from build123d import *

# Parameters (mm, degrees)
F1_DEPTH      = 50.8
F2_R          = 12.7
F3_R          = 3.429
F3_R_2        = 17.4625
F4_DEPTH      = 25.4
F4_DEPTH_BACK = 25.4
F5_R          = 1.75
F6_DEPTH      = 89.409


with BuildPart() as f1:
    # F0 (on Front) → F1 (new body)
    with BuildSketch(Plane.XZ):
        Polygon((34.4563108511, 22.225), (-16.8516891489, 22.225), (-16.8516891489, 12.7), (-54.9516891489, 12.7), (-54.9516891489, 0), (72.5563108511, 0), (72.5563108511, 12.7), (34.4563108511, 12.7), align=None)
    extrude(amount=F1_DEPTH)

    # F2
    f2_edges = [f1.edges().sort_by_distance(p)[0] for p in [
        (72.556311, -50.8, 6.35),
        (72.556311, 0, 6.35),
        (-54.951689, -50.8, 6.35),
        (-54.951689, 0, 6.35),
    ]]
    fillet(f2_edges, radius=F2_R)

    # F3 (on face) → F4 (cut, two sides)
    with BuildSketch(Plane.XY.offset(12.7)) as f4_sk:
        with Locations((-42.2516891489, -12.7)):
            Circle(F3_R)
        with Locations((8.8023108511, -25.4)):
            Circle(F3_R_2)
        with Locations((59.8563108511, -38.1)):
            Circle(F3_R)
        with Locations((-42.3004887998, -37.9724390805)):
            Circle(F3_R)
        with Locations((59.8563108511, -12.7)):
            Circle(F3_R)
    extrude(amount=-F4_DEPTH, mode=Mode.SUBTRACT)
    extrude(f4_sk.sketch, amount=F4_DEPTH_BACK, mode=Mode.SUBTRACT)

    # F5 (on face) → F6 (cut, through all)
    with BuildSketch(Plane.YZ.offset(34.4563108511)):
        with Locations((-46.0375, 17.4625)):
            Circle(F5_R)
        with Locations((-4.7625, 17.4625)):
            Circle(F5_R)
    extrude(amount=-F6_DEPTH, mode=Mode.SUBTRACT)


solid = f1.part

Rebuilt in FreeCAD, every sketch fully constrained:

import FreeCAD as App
import Part
import Sketcher
from FreeCAD import Vector
Q = App.Units.Quantity


def edges_at(feature, points):
    """Names of the edges that pass closest to the given points."""
    edges = feature.Shape.Edges
    near = lambda p: min(range(len(edges)), key=lambda i: edges[i].distToShape(Part.Vertex(*p))[0])
    return sorted({f"Edge{near(p) + 1}" for p in points})

doc = App.newDocument("Part")
params = doc.addObject("Spreadsheet::Sheet", "Params")
for row, (alias, value) in enumerate([
    ("sketch1_width", "1.5 in"),
    ("sketch1_height", "0.5 in"),
    ("sketch1_width2", "2.02 in"),
    ("sketch1_height2", "0.375 in"),
    ("pad1_length", "2 in"),
    ("fillet_radius", "0.5 in"),
    ("sketch2_diameter", "0.27 in"),
    ("sketch2_diameter2", "1.375 in"),
], start=1):
    params.set(f"A{row}", alias)
    params.set(f"B{row}", "=" + value)
    params.setAlias(f"B{row}", alias)

body = doc.addObject("PartDesign::Body", "Body")

sketch1 = body.newObject("Sketcher::SketchObject", "Sketch")
sketch1.AttachmentSupport = (doc.getObject("XZ_Plane"), [""])
sketch1.MapMode = "FlatFace"
sketch1.addGeometry([
    Part.LineSegment(Vector(34.456311, 22.225, 0), Vector(-16.851689, 22.225, 0)),
    Part.LineSegment(Vector(-16.851689, 22.225, 0), Vector(-16.851689, 12.7, 0)),
    Part.LineSegment(Vector(-16.851689, 12.7, 0), Vector(-54.951689, 12.7, 0)),
    Part.LineSegment(Vector(-54.951689, 12.7, 0), Vector(-54.951689, 0, 0)),
    Part.LineSegment(Vector(-54.951689, 0, 0), Vector(72.556311, 0, 0)),
    Part.LineSegment(Vector(72.556311, 0, 0), Vector(72.556311, 12.7, 0)),
    Part.LineSegment(Vector(72.556311, 12.7, 0), Vector(34.456311, 12.7, 0)),
    Part.LineSegment(Vector(34.456311, 12.7, 0), Vector(34.456311, 22.225, 0)),
], False)
sketch1.addConstraint([
    Sketcher.Constraint("Coincident", 0, 2, 1, 1),
    Sketcher.Constraint("Coincident", 1, 2, 2, 1),
    Sketcher.Constraint("Coincident", 2, 2, 3, 1),
    Sketcher.Constraint("Coincident", 3, 2, 4, 1),
    Sketcher.Constraint("Coincident", 4, 2, 5, 1),
    Sketcher.Constraint("Coincident", 5, 2, 6, 1),
    Sketcher.Constraint("Coincident", 6, 2, 7, 1),
    Sketcher.Constraint("Coincident", 7, 2, 0, 1),
    Sketcher.Constraint("Horizontal", 0),
    Sketcher.Constraint("Vertical", 1),
    Sketcher.Constraint("Horizontal", 2),
    Sketcher.Constraint("Vertical", 3),
    Sketcher.Constraint("Horizontal", 4),
    Sketcher.Constraint("Vertical", 5),
    Sketcher.Constraint("Horizontal", 6),
    Sketcher.Constraint("Vertical", 7),
    Sketcher.Constraint("PointOnObject", 3, 2, -1),
    Sketcher.Constraint("Horizontal", 2, 2, 5, 2),
    Sketcher.Constraint("Equal", 2, 6),
    Sketcher.Constraint("DistanceX", 2, 2, 2, 1, Q("1.5 in")),
    Sketcher.Constraint("DistanceY", 3, 2, 3, 1, Q("0.5 in")),
    Sketcher.Constraint("DistanceX", 0, 2, 0, 1, Q("2.02 in")),
    Sketcher.Constraint("DistanceY", 1, 2, 1, 1, Q("0.375 in")),
    Sketcher.Constraint("DistanceX", 0, 2, -1, 1, Q("16.851689 mm")),
])
sketch1.setExpression("Constraints[19]", "Params.sketch1_width")
sketch1.setExpression("Constraints[20]", "Params.sketch1_height")
sketch1.setExpression("Constraints[21]", "Params.sketch1_width2")
sketch1.setExpression("Constraints[22]", "Params.sketch1_height2")
pad1 = body.newObject("PartDesign::Pad", "Pad")
pad1.Profile = sketch1
pad1.setExpression("Length", "Params.pad1_length")
doc.recompute()

fillet = body.newObject("PartDesign::Fillet", "Fillet")
fillet.Base = (pad1, edges_at(pad1, [
    (72.556, -50.8, 6.35),
    (72.556, 0, 6.35),
    (-54.952, -50.8, 6.35),
    (-54.952, 0, 6.35),
]))
fillet.setExpression("Radius", "Params.fillet_radius")

sketch2 = body.newObject("Sketcher::SketchObject", "Sketch001")
sketch2.AttachmentSupport = (doc.getObject("XY_Plane"), [""])
sketch2.MapMode = "FlatFace"
sketch2.AttachmentOffset = App.Placement(Vector(0, 0, 0.5 * 25.4), App.Rotation())
sketch2.addGeometry([
    Part.Circle(Vector(-42.251689, -12.7, 0), Vector(0, 0, 1), 3.429),
    Part.Circle(Vector(8.802311, -25.4, 0), Vector(0, 0, 1), 17.4625),
    Part.Circle(Vector(59.856311, -38.1, 0), Vector(0, 0, 1), 3.429),
    Part.Circle(Vector(-42.300489, -37.972439, 0), Vector(0, 0, 1), 3.429),
    Part.Circle(Vector(59.856311, -12.7, 0), Vector(0, 0, 1), 3.429),
], False)
sketch2.addConstraint([
    Sketcher.Constraint("Equal", 0, 2),
    Sketcher.Constraint("Equal", 2, 3),
    Sketcher.Constraint("Equal", 3, 4),
    Sketcher.Constraint("Horizontal", 0, 3, 4, 3),
    Sketcher.Constraint("Vertical", 2, 3, 4, 3),
    Sketcher.Constraint("Diameter", 0, Q("0.27 in")),
    Sketcher.Constraint("Diameter", 1, Q("1.375 in")),
    Sketcher.Constraint("DistanceY", 1, 3, -1, 1, Q("1 in")),
    Sketcher.Constraint("DistanceY", 2, 3, 0, 3, Q("1 in")),
    Sketcher.Constraint("DistanceY", 0, 3, -1, 1, Q("0.5 in")),
    Sketcher.Constraint("DistanceX", 0, 3, 1, 3, Q("2.01 in")),
    Sketcher.Constraint("DistanceX", 1, 3, 2, 3, Q("2.01 in")),
    Sketcher.Constraint("DistanceX", 3, 3, 0, 3, Q("0.0488 mm")),
    Sketcher.Constraint("DistanceX", 0, 3, -1, 1, Q("42.251689 mm")),
    Sketcher.Constraint("DistanceY", 3, 3, -1, 1, Q("37.972439 mm")),
])
sketch2.setExpression("Constraints[5]", "Params.sketch2_diameter")
sketch2.setExpression("Constraints[6]", "Params.sketch2_diameter2")
pocket1 = body.newObject("PartDesign::Pocket", "Pocket")
pocket1.Profile = sketch2
pocket1.Type = "ThroughAll"
pocket1.Midplane = True

sketch3 = body.newObject("Sketcher::SketchObject", "Sketch002")
sketch3.AttachmentSupport = (doc.getObject("YZ_Plane"), [""])
sketch3.MapMode = "FlatFace"
sketch3.AttachmentOffset = App.Placement(Vector(0, 0, 34.456311), App.Rotation())
sketch3.addGeometry([
    Part.Circle(Vector(-46.0375, 17.4625, 0), Vector(0, 0, 1), 1.75),
    Part.Circle(Vector(-4.7625, 17.4625, 0), Vector(0, 0, 1), 1.75),
], False)
sketch3.addConstraint([
    Sketcher.Constraint("Equal", 0, 1),
    Sketcher.Constraint("Horizontal", 0, 3, 1, 3),
    Sketcher.Constraint("Diameter", 0, Q("3.5 mm")),
    Sketcher.Constraint("DistanceX", 0, 3, -1, 1, Q("1.8125 in")),
    Sketcher.Constraint("DistanceY", -1, 1, 0, 3, Q("0.6875 in")),
    Sketcher.Constraint("DistanceX", 1, 3, -1, 1, Q("0.1875 in")),
])
pocket2 = body.newObject("PartDesign::Pocket", "Pocket001")
pocket2.Profile = sketch3
pocket2.Type = "ThroughAll"

doc.recompute()
